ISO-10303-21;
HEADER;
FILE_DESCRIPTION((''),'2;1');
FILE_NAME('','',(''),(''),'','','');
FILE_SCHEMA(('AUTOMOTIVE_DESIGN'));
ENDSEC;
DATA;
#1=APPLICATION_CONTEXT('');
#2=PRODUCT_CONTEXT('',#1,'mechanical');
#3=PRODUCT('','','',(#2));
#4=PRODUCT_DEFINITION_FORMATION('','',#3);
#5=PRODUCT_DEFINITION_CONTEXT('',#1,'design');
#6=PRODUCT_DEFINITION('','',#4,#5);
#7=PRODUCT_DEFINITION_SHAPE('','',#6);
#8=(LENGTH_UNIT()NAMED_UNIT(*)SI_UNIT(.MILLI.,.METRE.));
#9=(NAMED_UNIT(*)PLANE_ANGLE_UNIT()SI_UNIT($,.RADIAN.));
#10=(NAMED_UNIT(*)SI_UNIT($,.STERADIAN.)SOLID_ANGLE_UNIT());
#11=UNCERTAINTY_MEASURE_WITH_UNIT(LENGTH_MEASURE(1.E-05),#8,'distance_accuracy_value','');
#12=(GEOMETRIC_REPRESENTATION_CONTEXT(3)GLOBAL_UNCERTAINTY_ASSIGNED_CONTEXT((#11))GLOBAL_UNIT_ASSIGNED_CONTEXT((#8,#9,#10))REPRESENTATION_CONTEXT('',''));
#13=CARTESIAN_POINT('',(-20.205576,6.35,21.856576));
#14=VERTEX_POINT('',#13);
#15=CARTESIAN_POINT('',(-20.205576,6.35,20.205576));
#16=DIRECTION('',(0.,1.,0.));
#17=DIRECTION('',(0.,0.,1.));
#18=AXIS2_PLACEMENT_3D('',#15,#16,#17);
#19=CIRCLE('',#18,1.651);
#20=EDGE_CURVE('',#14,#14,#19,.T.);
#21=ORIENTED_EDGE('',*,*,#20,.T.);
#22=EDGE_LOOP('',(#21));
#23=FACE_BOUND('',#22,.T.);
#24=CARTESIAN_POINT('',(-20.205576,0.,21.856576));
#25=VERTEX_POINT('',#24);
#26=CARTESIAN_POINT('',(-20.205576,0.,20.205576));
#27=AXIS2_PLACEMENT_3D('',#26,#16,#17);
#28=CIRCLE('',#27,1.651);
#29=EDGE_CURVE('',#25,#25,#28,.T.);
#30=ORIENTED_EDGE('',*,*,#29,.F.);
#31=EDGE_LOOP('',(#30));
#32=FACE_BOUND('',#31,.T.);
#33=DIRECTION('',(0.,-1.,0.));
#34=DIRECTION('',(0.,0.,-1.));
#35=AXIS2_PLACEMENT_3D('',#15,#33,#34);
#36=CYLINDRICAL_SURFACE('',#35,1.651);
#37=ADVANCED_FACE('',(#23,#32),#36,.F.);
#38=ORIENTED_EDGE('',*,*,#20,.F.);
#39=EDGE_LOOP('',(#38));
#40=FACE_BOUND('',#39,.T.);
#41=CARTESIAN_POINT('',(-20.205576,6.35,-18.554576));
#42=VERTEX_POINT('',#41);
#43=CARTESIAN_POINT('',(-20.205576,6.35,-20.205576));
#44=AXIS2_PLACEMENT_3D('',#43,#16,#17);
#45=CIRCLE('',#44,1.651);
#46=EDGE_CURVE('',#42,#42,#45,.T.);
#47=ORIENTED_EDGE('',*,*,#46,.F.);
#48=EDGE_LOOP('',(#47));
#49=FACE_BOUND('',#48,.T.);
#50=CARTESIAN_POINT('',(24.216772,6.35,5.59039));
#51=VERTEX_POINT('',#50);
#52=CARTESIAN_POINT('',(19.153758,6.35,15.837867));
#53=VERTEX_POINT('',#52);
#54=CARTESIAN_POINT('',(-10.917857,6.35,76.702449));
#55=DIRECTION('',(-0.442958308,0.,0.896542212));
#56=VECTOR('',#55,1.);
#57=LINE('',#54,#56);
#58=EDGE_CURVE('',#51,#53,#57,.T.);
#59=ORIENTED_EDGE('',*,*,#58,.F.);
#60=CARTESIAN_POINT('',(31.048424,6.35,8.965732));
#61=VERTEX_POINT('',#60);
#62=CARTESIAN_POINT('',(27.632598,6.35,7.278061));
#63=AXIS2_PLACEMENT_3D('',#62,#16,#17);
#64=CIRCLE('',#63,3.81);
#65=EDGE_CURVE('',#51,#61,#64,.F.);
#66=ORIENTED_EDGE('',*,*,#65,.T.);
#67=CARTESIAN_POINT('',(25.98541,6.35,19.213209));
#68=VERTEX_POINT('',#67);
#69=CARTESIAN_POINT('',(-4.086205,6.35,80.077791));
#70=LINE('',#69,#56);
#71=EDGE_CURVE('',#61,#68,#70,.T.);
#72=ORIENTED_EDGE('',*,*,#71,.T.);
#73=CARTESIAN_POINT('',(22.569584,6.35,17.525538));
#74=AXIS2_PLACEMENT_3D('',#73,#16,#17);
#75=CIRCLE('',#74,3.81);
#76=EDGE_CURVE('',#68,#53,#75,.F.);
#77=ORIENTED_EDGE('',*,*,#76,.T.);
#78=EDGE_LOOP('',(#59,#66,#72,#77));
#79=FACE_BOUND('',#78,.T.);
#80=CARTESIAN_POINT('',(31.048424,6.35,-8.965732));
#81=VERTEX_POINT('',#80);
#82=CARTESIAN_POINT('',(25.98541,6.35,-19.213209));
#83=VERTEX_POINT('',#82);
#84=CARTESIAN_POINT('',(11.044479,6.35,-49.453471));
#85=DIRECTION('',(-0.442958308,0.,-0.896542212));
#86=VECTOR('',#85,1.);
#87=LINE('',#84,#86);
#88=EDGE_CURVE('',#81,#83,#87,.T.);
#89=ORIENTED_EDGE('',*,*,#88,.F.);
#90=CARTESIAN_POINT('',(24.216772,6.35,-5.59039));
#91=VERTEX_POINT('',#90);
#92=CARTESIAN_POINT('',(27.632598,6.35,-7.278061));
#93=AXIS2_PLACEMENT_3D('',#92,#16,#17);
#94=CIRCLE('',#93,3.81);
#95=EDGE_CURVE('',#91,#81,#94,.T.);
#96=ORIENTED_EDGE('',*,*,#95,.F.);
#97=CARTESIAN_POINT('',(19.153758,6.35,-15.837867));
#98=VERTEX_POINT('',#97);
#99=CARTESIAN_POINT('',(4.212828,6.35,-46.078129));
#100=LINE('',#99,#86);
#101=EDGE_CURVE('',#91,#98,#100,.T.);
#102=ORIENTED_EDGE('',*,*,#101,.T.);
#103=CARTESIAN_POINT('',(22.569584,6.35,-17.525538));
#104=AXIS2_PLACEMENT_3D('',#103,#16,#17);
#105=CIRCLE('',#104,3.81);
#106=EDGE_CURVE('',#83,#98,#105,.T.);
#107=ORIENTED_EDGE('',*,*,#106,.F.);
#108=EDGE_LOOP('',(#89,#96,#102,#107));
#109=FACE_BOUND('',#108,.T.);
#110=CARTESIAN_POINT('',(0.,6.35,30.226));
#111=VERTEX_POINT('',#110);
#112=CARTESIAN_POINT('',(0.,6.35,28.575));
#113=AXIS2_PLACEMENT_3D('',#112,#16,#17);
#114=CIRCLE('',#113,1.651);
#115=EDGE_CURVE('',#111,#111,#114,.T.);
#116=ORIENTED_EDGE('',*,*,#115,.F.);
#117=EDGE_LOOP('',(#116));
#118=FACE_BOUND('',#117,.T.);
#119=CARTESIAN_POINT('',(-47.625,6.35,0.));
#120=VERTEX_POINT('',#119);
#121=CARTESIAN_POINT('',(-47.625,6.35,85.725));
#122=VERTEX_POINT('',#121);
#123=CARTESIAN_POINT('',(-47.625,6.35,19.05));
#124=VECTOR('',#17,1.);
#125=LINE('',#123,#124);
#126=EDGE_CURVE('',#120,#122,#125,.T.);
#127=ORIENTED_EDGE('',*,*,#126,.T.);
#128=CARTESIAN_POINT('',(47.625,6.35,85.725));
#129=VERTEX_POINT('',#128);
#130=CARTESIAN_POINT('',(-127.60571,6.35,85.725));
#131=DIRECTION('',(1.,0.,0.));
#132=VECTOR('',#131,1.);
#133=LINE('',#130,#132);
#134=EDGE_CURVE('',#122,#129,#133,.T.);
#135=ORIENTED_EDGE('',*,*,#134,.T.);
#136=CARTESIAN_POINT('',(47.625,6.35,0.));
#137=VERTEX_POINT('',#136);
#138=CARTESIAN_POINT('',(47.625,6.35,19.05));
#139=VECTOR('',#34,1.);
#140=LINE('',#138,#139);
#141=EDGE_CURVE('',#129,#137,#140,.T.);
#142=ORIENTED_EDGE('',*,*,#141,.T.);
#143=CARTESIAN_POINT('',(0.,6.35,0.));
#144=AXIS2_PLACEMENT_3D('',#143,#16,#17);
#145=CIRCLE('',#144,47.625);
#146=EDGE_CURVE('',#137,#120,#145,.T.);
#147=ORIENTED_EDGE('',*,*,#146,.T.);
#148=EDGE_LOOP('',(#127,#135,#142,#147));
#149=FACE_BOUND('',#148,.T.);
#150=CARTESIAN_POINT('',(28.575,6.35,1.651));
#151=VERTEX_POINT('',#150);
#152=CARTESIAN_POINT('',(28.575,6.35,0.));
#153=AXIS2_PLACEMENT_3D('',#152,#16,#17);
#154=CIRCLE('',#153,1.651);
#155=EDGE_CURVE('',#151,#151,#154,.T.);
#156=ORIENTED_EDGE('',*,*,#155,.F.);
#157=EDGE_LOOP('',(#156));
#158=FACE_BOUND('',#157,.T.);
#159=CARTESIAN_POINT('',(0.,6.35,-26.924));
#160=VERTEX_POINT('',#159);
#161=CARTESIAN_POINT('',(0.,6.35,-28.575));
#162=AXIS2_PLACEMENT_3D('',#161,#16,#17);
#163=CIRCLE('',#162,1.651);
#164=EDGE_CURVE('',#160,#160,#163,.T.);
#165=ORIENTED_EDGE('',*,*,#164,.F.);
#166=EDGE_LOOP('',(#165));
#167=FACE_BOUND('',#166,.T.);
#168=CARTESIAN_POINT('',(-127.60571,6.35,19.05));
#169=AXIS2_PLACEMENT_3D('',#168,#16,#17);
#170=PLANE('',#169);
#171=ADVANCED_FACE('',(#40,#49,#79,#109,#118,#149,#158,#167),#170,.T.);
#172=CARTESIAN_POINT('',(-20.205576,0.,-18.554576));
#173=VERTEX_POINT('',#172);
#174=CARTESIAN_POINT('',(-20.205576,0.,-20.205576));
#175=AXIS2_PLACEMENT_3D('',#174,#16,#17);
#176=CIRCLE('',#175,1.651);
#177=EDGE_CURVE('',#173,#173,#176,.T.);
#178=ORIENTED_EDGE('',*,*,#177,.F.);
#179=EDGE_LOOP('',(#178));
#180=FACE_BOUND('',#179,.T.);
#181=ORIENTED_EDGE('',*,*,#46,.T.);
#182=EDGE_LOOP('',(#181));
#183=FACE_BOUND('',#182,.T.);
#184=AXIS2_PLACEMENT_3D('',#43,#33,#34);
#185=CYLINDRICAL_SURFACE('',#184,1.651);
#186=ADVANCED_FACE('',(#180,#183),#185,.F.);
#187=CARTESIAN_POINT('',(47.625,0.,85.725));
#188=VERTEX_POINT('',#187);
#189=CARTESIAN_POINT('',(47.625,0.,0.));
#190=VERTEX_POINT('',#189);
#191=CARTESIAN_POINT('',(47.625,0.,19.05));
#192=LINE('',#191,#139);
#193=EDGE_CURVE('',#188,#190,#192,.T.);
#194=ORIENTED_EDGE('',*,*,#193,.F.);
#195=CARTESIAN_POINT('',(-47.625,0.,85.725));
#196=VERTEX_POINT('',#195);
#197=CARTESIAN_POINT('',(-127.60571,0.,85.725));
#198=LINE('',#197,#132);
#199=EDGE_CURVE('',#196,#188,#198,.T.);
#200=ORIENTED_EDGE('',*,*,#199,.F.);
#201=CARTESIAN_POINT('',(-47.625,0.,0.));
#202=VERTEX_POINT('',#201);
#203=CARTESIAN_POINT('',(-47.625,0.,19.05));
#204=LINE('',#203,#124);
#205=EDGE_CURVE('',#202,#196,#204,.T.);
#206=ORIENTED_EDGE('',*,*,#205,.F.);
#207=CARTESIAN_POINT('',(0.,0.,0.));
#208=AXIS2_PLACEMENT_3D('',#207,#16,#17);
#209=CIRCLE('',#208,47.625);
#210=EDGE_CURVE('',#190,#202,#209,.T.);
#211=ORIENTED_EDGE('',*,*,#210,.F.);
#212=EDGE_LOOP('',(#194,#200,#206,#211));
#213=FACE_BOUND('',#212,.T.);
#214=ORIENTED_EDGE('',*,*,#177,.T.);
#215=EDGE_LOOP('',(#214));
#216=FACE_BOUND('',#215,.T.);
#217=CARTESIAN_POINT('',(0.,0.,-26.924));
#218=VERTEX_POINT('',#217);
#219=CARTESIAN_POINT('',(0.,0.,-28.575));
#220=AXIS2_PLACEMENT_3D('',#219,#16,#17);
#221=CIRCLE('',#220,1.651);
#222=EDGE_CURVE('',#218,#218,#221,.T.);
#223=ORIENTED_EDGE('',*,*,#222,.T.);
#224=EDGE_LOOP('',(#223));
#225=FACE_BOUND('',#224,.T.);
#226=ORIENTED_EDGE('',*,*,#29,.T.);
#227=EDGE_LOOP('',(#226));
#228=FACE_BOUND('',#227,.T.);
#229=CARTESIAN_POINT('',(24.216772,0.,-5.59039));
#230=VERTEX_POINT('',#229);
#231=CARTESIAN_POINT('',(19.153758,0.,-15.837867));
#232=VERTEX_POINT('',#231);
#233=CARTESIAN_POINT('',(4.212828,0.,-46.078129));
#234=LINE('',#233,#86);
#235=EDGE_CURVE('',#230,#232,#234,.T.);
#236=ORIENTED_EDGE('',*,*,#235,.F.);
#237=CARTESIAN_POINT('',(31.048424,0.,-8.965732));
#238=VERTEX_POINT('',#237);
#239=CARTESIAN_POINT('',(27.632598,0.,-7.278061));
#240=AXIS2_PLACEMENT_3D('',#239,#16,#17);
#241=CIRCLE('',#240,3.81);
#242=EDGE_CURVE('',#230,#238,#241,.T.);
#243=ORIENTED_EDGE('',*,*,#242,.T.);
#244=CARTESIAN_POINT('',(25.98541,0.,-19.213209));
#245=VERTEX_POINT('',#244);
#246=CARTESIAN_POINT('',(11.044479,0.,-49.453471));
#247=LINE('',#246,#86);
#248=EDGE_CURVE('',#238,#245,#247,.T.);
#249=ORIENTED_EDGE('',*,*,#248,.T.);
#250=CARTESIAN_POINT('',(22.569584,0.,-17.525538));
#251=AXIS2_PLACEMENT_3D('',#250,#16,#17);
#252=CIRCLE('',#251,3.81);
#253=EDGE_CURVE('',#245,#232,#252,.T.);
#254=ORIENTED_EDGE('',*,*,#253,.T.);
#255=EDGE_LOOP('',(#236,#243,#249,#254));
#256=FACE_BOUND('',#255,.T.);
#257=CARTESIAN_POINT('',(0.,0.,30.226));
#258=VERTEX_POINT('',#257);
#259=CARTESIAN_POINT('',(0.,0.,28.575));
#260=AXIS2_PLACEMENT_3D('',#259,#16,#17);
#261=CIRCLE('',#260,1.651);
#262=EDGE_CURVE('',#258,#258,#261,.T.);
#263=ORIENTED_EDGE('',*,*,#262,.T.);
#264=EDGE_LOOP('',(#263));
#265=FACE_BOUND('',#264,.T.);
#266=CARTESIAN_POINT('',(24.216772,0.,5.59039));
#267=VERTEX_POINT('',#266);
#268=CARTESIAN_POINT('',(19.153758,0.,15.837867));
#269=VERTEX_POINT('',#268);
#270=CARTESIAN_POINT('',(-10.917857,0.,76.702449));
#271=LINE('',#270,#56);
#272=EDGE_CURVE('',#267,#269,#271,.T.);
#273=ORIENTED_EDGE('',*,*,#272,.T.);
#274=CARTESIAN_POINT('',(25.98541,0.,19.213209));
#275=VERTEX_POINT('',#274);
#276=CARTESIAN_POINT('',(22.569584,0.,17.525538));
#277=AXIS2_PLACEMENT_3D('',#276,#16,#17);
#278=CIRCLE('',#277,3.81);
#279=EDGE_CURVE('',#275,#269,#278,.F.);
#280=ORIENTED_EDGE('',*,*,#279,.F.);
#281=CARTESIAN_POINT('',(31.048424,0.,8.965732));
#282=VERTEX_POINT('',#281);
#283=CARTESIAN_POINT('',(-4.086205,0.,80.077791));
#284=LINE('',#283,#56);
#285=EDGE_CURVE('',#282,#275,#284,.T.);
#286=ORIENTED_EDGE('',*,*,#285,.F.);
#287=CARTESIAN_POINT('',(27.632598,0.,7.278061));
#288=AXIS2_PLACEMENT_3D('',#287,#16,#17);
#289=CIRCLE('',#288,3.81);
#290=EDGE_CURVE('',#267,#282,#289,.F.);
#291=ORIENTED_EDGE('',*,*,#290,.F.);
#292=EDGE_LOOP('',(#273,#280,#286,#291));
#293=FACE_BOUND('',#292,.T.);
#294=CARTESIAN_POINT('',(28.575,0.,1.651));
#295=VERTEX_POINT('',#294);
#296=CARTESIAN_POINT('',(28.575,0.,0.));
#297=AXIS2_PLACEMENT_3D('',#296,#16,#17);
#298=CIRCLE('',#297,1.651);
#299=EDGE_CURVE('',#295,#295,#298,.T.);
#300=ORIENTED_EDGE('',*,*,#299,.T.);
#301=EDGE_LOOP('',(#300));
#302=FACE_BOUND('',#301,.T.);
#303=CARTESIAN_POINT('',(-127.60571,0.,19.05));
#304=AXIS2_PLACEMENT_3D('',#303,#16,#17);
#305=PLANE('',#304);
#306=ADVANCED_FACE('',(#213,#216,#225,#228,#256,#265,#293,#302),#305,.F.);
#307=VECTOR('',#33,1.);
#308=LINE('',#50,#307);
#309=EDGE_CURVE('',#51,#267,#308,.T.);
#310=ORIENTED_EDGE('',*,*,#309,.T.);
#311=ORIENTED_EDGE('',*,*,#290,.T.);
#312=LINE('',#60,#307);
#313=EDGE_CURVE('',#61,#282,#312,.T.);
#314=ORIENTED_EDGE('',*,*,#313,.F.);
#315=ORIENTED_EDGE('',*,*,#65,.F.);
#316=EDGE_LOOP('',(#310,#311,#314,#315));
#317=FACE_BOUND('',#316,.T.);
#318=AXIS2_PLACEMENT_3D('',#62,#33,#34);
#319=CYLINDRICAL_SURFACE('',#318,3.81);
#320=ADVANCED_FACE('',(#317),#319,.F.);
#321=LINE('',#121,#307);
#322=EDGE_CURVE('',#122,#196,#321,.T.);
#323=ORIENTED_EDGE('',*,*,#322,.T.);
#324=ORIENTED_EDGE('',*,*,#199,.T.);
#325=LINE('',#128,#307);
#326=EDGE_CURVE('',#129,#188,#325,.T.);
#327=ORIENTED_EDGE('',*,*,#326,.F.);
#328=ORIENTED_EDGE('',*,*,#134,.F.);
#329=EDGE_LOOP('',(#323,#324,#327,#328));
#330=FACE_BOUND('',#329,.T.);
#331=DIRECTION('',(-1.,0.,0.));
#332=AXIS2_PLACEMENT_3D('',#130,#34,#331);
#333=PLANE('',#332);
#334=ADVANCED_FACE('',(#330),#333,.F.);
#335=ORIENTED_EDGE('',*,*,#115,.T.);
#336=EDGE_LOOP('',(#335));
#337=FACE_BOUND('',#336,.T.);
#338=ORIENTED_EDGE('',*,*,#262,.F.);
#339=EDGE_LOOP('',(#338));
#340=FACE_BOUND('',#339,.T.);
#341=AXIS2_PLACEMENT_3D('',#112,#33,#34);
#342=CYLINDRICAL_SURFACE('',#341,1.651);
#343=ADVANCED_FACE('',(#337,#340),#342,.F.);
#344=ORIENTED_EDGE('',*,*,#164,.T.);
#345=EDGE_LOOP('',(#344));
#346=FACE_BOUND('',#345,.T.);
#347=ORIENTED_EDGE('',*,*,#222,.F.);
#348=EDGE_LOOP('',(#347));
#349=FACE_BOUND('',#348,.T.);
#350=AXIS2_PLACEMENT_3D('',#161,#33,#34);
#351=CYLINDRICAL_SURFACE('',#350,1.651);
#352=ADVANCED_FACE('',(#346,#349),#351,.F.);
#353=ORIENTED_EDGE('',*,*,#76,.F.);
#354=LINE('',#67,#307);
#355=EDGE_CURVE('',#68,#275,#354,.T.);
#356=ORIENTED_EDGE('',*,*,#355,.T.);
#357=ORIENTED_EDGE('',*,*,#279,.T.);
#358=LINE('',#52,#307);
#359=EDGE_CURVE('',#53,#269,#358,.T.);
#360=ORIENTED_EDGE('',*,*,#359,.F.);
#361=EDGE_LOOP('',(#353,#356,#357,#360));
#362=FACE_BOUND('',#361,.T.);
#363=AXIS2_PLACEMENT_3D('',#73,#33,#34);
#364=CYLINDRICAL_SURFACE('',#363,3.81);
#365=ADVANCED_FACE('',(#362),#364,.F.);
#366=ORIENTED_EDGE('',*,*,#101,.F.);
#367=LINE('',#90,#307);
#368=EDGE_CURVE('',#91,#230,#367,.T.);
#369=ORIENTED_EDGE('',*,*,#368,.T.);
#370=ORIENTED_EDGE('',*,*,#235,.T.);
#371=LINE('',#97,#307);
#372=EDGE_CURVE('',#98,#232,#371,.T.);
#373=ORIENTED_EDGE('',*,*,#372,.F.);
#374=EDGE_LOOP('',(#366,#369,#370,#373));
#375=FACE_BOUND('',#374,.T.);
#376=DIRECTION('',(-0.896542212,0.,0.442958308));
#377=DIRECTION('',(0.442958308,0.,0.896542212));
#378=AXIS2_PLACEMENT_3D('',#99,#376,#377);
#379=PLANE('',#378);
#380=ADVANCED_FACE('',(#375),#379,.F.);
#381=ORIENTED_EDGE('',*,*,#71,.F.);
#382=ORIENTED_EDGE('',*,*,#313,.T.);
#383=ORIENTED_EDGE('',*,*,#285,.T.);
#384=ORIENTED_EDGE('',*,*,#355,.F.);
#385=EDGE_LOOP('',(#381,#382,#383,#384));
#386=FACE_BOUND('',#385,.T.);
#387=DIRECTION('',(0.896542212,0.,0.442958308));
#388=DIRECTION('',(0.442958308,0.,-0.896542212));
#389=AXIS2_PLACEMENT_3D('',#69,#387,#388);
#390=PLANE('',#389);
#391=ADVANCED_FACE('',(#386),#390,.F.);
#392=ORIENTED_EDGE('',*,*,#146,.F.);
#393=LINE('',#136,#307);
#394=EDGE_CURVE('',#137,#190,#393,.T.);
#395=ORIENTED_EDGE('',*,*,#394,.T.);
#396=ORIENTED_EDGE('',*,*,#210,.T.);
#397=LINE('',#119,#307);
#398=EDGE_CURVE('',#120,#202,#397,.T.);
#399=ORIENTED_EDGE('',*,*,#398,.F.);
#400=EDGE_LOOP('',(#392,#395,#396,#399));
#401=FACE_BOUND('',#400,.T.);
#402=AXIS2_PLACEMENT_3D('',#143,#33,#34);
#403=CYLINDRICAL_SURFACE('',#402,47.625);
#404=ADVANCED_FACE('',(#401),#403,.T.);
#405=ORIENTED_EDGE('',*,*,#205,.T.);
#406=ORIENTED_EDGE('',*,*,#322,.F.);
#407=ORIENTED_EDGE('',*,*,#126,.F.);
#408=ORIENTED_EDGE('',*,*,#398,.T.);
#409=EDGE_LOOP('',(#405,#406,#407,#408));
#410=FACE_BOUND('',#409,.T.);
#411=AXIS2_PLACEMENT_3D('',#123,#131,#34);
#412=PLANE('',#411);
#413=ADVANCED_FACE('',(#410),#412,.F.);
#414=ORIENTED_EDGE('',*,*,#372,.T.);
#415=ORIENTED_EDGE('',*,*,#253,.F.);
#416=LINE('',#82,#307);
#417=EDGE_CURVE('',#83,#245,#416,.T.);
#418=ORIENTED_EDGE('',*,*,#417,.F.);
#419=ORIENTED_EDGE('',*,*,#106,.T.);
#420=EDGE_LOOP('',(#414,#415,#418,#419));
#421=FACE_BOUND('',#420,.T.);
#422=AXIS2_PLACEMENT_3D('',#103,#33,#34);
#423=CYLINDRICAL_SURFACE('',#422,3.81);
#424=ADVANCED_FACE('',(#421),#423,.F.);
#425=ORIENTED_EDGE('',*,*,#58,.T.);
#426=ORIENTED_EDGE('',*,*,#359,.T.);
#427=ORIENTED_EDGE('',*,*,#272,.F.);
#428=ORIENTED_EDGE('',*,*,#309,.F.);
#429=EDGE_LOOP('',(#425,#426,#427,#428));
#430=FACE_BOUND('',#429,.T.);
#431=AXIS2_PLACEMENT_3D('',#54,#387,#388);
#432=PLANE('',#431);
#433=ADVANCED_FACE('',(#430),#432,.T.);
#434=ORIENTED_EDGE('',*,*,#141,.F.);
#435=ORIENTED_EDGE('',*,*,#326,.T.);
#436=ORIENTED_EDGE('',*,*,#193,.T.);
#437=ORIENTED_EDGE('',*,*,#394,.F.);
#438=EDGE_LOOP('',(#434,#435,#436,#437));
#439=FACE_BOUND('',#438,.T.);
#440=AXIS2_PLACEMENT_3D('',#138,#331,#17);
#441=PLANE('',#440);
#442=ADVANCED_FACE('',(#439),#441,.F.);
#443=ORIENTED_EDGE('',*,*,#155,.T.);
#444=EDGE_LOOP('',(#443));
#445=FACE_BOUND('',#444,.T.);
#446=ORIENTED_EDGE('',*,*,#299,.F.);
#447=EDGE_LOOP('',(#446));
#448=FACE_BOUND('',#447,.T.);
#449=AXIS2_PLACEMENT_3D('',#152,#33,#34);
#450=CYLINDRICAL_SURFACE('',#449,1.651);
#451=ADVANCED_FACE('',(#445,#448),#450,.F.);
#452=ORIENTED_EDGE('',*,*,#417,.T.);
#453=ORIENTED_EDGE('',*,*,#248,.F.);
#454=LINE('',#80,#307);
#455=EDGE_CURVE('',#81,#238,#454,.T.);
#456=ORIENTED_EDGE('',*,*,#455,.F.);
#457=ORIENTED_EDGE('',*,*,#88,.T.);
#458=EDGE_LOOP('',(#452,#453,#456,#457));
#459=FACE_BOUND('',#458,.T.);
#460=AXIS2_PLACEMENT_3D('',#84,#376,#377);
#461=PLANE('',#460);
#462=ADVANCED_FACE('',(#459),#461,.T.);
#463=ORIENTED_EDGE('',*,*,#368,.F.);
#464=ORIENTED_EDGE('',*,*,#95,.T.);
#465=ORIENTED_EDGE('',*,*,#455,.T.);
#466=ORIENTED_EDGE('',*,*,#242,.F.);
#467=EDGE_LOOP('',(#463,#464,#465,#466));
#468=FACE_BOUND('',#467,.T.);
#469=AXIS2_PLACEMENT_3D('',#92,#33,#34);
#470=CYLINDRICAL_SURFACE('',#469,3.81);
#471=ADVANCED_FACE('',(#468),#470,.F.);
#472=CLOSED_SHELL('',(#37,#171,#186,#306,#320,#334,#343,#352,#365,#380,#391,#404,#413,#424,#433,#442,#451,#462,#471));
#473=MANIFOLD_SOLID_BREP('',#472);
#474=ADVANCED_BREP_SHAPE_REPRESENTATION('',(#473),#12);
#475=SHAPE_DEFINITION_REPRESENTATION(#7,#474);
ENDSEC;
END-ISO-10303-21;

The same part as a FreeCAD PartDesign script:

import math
import FreeCAD as App
import Part
import Sketcher

V = App.Vector
Q = App.Units.Quantity

doc = App.newDocument("Part")
body = doc.addObject("PartDesign::Body", "Body")

# Sketch on XZ plane
sketch1 = body.newObject("Sketcher::SketchObject", "Sketch")
sketch1.AttachmentSupport = (doc.getObject("XZ_Plane"), [""])
sketch1.MapMode = "FlatFace"
sketch1.addGeometry([
    Part.ArcOfCircle(Part.Circle(V(0, 0, 0), V(0, 0, 1), 47.6), math.radians(180), math.radians(360)),  # 0
    Part.LineSegment(V(-47.6, 0, 0), V(-47.6, 85.7, 0)),  # 1
    Part.LineSegment(V(-47.6, 85.7, 0), V(47.6, 85.7, 0)),  # 2
    Part.LineSegment(V(47.6, 85.7, 0), V(47.6, 0, 0)),  # 3
    Part.Circle(V(-20.2, 20.2, 0), V(0, 0, 1), 1.7),  # 4
    Part.Circle(V(0, 28.6, 0), V(0, 0, 1), 1.7),  # 5
    Part.ArcOfCircle(Part.Circle(V(27.6, 7.3, 0), V(0, 0, 1), 3.8), math.radians(-154), math.radians(26)),  # 6
    Part.LineSegment(V(31, 9, 0), V(26, 19.2, 0)),  # 7
    Part.ArcOfCircle(Part.Circle(V(22.6, 17.5, 0), V(0, 0, 1), 3.8), math.radians(26), math.radians(206)),  # 8
    Part.LineSegment(V(19.2, 15.8, 0), V(24.2, 5.6, 0)),  # 9
    Part.Circle(V(-20.2, -20.2, 0), V(0, 0, 1), 1.7),  # 10
    Part.Circle(V(0, -28.6, 0), V(0, 0, 1), 1.7),  # 11
    Part.Circle(V(28.6, 0, 0), V(0, 0, 1), 1.7),  # 12
    Part.ArcOfCircle(Part.Circle(V(22.6, -17.5, 0), V(0, 0, 1), 3.8), math.radians(154), math.radians(334)),  # 13
    Part.LineSegment(V(26, -19.2, 0), V(31, -9, 0)),  # 14
    Part.ArcOfCircle(Part.Circle(V(27.6, -7.3, 0), V(0, 0, 1), 3.8), math.radians(-26), math.radians(154)),  # 15
    Part.LineSegment(V(24.2, -5.6, 0), V(19.2, -15.8, 0)),  # 16
], False)
sketch1.addConstraint([
    Sketcher.Constraint("Tangent", 0, 1, 1, 1),
    Sketcher.Constraint("Coincident", 1, 2, 2, 1),
    Sketcher.Constraint("Coincident", 2, 2, 3, 1),
    Sketcher.Constraint("Tangent", 3, 2, 0, 2),
    Sketcher.Constraint("Tangent", 6, 2, 7, 1),
    Sketcher.Constraint("Tangent", 7, 2, 8, 1),
    Sketcher.Constraint("Tangent", 8, 2, 9, 1),
    Sketcher.Constraint("Tangent", 9, 2, 6, 1),
    Sketcher.Constraint("Tangent", 13, 2, 14, 1),
    Sketcher.Constraint("Tangent", 14, 2, 15, 1),
    Sketcher.Constraint("Tangent", 15, 2, 16, 1),
    Sketcher.Constraint("Tangent", 16, 2, 13, 1),
    Sketcher.Constraint("Vertical", 1),
    Sketcher.Constraint("Horizontal", 2),
    Sketcher.Constraint("Vertical", 3),
    Sketcher.Constraint("Coincident", 0, 3, -1, 1),
    Sketcher.Constraint("Equal", 4, 5),
    Sketcher.Constraint("Equal", 6, 8),
    Sketcher.Constraint("Equal", 5, 10),
    Sketcher.Constraint("Equal", 10, 11),
    Sketcher.Constraint("Equal", 11, 12),
    Sketcher.Constraint("Equal", 8, 13),
    Sketcher.Constraint("Equal", 13, 15),
    Sketcher.Constraint("Symmetric", 5, 3, 11, 3, -1, 1),
    Sketcher.Constraint("Symmetric", 4, 3, 10, 3, -1),
    Sketcher.Constraint("Symmetric", 8, 3, 13, 3, -1),
    Sketcher.Constraint("Symmetric", 6, 3, 15, 3, -1),
    Sketcher.Constraint("PointOnObject", 5, 3, -2),
    Sketcher.Constraint("PointOnObject", 12, 3, -1),
    Sketcher.Constraint("Diameter", 4, Q("0.13 in")),
    Sketcher.Constraint("Radius", 6, Q("0.15 in")),
    Sketcher.Constraint("Radius", 0, Q("1.875 in")),
    Sketcher.Constraint("Distance", 7, Q("0.45 in")),
    Sketcher.Constraint("DistanceY", 1, 1, 1, 2, Q("3.375 in")),
    Sketcher.Constraint("DistanceY", 5, 3, 1, 2, Q("2.25 in")),
    Sketcher.Constraint("DistanceX", 12, 3, 2, 2, Q("0.75 in")),
    Sketcher.Constraint("DistanceY", 13, 3, 6, 3, Q("24.803599 mm")),
    Sketcher.Constraint("DistanceY", -1, 1, 6, 3, Q("7.278061 mm")),
    Sketcher.Constraint("DistanceX", -1, 1, 7, 2, Q("25.98541 mm")),
    Sketcher.Constraint("DistanceX", 4, 3, 8, 3, Q("42.775161 mm")),
    Sketcher.Constraint("DistanceY", -1, 1, 4, 3, Q("20.205576 mm")),
])
pad1 = body.newObject("PartDesign::Pad", "Pad")
pad1.Profile = sketch1
pad1.Length = Q("0.25 in")
pad1.Reversed = True

doc.recompute()
